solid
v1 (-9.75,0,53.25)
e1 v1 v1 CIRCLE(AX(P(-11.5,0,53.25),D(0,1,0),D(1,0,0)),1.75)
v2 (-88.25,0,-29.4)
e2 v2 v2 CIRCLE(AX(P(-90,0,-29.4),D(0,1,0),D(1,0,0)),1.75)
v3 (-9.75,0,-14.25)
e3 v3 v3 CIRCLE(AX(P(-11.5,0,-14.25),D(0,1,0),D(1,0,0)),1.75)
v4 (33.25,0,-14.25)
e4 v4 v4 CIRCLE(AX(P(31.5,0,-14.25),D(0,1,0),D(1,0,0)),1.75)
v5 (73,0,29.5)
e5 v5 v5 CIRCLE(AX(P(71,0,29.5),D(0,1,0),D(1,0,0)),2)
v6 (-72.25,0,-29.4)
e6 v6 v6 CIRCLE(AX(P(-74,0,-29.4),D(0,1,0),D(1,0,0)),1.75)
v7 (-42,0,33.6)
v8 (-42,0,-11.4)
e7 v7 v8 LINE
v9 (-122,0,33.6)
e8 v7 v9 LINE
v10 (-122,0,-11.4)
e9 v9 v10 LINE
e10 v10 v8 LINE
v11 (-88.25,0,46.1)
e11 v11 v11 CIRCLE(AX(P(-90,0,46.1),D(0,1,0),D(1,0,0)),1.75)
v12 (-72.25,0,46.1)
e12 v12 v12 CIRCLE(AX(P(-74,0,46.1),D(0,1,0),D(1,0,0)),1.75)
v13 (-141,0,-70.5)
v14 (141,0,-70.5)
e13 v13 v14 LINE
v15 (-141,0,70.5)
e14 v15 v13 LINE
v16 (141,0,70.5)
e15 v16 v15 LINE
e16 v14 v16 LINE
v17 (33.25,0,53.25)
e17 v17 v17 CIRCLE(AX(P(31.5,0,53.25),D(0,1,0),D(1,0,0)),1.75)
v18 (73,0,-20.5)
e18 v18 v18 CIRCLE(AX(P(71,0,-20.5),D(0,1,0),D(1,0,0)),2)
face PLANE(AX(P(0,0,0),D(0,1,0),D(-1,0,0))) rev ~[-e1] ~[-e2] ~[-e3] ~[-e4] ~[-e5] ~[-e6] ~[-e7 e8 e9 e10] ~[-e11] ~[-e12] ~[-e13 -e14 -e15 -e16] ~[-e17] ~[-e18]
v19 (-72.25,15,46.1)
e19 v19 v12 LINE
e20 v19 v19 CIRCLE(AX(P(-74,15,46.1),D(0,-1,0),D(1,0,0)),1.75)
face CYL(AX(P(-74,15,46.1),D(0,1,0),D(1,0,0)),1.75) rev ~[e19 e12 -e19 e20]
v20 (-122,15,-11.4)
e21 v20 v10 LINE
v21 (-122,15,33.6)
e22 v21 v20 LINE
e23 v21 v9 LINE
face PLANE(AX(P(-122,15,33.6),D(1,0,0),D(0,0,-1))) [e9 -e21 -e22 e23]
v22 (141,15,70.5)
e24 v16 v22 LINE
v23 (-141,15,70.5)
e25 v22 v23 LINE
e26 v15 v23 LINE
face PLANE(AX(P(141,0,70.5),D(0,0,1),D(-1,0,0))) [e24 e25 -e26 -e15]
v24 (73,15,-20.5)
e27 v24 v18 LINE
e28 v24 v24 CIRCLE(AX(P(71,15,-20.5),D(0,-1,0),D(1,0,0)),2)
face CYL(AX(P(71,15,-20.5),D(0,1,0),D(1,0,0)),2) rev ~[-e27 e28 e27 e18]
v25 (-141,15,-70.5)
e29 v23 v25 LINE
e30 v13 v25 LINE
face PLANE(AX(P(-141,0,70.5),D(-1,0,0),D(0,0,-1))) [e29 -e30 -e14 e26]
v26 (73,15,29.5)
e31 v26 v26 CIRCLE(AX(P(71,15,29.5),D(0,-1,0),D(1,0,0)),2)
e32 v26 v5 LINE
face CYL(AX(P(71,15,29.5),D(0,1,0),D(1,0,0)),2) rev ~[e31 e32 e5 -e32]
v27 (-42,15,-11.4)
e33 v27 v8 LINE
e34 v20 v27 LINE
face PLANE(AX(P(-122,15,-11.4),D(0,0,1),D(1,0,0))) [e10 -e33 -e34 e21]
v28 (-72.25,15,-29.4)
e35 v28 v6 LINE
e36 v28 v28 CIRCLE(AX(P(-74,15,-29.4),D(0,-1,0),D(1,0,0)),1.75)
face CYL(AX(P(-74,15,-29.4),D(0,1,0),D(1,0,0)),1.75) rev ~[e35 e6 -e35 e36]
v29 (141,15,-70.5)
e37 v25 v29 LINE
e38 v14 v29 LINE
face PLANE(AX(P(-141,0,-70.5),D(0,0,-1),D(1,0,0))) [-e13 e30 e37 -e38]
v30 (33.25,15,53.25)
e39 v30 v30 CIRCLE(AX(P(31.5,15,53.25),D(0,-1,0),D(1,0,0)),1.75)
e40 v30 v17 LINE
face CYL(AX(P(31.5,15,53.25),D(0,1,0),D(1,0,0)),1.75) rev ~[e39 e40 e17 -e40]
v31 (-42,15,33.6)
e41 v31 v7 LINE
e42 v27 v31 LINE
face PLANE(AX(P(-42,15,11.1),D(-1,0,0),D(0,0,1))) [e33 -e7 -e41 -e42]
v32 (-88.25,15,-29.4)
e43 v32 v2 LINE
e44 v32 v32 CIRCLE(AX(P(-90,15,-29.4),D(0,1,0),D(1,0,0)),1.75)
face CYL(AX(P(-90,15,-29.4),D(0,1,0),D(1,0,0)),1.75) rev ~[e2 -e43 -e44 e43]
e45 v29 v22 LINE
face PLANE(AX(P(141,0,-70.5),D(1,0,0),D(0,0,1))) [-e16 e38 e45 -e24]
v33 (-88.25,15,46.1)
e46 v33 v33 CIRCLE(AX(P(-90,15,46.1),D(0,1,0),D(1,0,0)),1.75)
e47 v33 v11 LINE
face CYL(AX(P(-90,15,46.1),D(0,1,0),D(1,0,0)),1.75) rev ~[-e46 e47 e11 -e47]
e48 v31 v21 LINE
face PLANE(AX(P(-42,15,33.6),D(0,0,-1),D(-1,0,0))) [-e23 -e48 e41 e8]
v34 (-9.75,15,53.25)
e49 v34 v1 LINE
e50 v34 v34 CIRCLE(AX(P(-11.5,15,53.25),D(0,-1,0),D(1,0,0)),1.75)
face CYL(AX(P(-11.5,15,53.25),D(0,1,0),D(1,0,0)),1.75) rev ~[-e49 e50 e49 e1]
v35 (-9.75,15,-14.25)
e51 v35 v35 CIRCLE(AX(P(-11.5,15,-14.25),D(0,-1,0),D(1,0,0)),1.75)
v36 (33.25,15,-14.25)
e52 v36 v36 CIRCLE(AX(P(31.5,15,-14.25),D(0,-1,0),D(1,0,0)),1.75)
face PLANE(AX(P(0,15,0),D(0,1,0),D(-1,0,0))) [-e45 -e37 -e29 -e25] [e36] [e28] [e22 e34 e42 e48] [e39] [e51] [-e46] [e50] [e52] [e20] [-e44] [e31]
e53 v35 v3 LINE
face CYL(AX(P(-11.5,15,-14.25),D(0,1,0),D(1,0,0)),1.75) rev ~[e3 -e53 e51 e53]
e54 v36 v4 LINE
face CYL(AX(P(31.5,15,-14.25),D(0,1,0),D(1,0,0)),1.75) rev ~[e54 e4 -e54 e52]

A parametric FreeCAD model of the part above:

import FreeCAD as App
import Part
import Sketcher
Q = App.Units.Quantity

doc = App.newDocument("Part")
params = doc.addObject("Spreadsheet::Sheet", "Params")
for row, (alias, value) in enumerate([
    ("sketch1_width", "282 mm"),
    ("sketch1_height", "141 mm"),
    ("pad1_length", "15 mm"),
    ("sketch2_width", "80 mm"),
    ("sketch2_height", "45 mm"),
    ("pocket1_length", "15 mm"),
    ("sketch3_diameter", "3.5 mm"),
    ("pocket2_length", "15 mm"),
    ("sketch4_diameter", "3.5 mm"),
    ("pocket3_length", "15 mm"),
    ("sketch5_diameter", "4 mm"),
    ("pocket4_length", "15 mm"),
], start=1):
    params.set(f"A{row}", alias)
    params.set(f"B{row}", "=" + value)
    params.setAlias(f"B{row}", alias)

body = doc.addObject("PartDesign::Body", "Body")

sketch1 = doc.addObject("Sketcher::SketchObject", "Sketch")
body.addObject(sketch1)
sketch1.AttachmentSupport = (doc.XZ_Plane, [""])
sketch1.MapMode = "FlatFace"
sketch1.addGeometry([
    Part.LineSegment(App.Vector(141, -70.5, 0), App.Vector(-141, -70.5, 0)),
    Part.LineSegment(App.Vector(-141, -70.5, 0), App.Vector(-141, 70.5, 0)),
    Part.LineSegment(App.Vector(-141, 70.5, 0), App.Vector(141, 70.5, 0)),
    Part.LineSegment(App.Vector(141, 70.5, 0), App.Vector(141, -70.5, 0)),
], False)
sketch1.addConstraint([
    Sketcher.Constraint("Coincident", 0, 2, 1, 1),
    Sketcher.Constraint("Coincident", 1, 2, 2, 1),
    Sketcher.Constraint("Coincident", 2, 2, 3, 1),
    Sketcher.Constraint("Coincident", 3, 2, 0, 1),
    Sketcher.Constraint("Horizontal", 0),
    Sketcher.Constraint("Vertical", 1),
    Sketcher.Constraint("Horizontal", 2),
    Sketcher.Constraint("Vertical", 3),
    Sketcher.Constraint("Symmetric", 0, 2, 2, 2, -1, 1),
    Sketcher.Constraint("DistanceX", 0, 2, 0, 1, Q("282 mm")),
    Sketcher.Constraint("DistanceY", 1, 1, 1, 2, Q("141 mm")),
])
sketch1.setExpression("Constraints[9]", "Params.sketch1_width")
sketch1.setExpression("Constraints[10]", "Params.sketch1_height")
pad1 = doc.addObject("PartDesign::Pad", "Pad")
body.addObject(pad1)
pad1.Profile = sketch1
pad1.setExpression("Length", "Params.pad1_length")
pad1.Reversed = True

sketch2 = doc.addObject("Sketcher::SketchObject", "Sketch001")
body.addObject(sketch2)
sketch2.AttachmentSupport = (doc.XZ_Plane, [""])
sketch2.MapMode = "FlatFace"
sketch2.AttachmentOffset = App.Placement(App.Vector(0, 0, -15), App.Rotation())
sketch2.addGeometry([
    Part.LineSegment(App.Vector(-42, -11.4, 0), App.Vector(-122, -11.4, 0)),
    Part.LineSegment(App.Vector(-122, -11.4, 0), App.Vector(-122, 33.6, 0)),
    Part.LineSegment(App.Vector(-122, 33.6, 0), App.Vector(-42, 33.6, 0)),
    Part.LineSegment(App.Vector(-42, 33.6, 0), App.Vector(-42, -11.4, 0)),
], False)
sketch2.addConstraint([
    Sketcher.Constraint("Coincident", 0, 2, 1, 1),
    Sketcher.Constraint("Coincident", 1, 2, 2, 1),
    Sketcher.Constraint("Coincident", 2, 2, 3, 1),
    Sketcher.Constraint("Coincident", 3, 2, 0, 1),
    Sketcher.Constraint("Horizontal", 0),
    Sketcher.Constraint("Vertical", 1),
    Sketcher.Constraint("Horizontal", 2),
    Sketcher.Constraint("Vertical", 3),
    Sketcher.Constraint("DistanceX", 0, 2, 0, 1, Q("80 mm")),
    Sketcher.Constraint("DistanceY", 1, 1, 1, 2, Q("45 mm")),
    Sketcher.Constraint("DistanceX", 0, 2, -1, 1, Q("122 mm")),
    Sketcher.Constraint("DistanceY", 0, 2, -1, 1, Q("11.4 mm")),
])
sketch2.setExpression("Constraints[8]", "Params.sketch2_width")
sketch2.setExpression("Constraints[9]", "Params.sketch2_height")
pocket1 = doc.addObject("PartDesign::Pocket", "Pocket")
body.addObject(pocket1)
pocket1.Profile = sketch2
pocket1.setExpression("Length", "Params.pocket1_length")
pocket1.Reversed = True

sketch3 = doc.addObject("Sketcher::SketchObject", "Sketch002")
body.addObject(sketch3)
sketch3.AttachmentSupport = (doc.XZ_Plane, [""])
sketch3.MapMode = "FlatFace"
sketch3.AttachmentOffset = App.Placement(App.Vector(0, 0, -15), App.Rotation())
sketch3.addGeometry([
    Part.Circle(App.Vector(-74, -29.4, 0), App.Vector(0, 0, 1), 1.75),
    Part.Circle(App.Vector(-90, -29.4, 0), App.Vector(0, 0, 1), 1.75),
    Part.Circle(App.Vector(-74, 46.1, 0), App.Vector(0, 0, 1), 1.75),
    Part.Circle(App.Vector(-90, 46.1, 0), App.Vector(0, 0, 1), 1.75),
], False)
sketch3.addConstraint([
    Sketcher.Constraint("Equal", 0, 1),
    Sketcher.Constraint("Equal", 1, 2),
    Sketcher.Constraint("Equal", 2, 3),
    Sketcher.Constraint("Horizontal", 0, 3, 1, 3),
    Sketcher.Constraint("Horizontal", 2, 3, 3, 3),
    Sketcher.Constraint("Vertical", 0, 3, 2, 3),
    Sketcher.Constraint("Vertical", 1, 3, 3, 3),
    Sketcher.Constraint("Diameter", 0, Q("3.5 mm")),
    Sketcher.Constraint("DistanceX", 0, 3, -1, 1, Q("74 mm")),
    Sketcher.Constraint("DistanceX", 1, 3, -1, 1, Q("90 mm")),
    Sketcher.Constraint("DistanceY", 0, 3, -1, 1, Q("29.4 mm")),
    Sketcher.Constraint("DistanceY", -1, 1, 2, 3, Q("46.1 mm")),
])
sketch3.setExpression("Constraints[7]", "Params.sketch3_diameter")
pocket2 = doc.addObject("PartDesign::Pocket", "Pocket001")
body.addObject(pocket2)
pocket2.Profile = sketch3
pocket2.setExpression("Length", "Params.pocket2_length")
pocket2.Reversed = True

sketch4 = doc.addObject("Sketcher::SketchObject", "Sketch003")
body.addObject(sketch4)
sketch4.AttachmentSupport = (doc.XZ_Plane, [""])
sketch4.MapMode = "FlatFace"
sketch4.AttachmentOffset = App.Placement(App.Vector(0, 0, -15), App.Rotation())
sketch4.addGeometry([
    Part.Circle(App.Vector(-11.5, 53.25, 0), App.Vector(0, 0, 1), 1.75),
    Part.Circle(App.Vector(31.5, 53.25, 0), App.Vector(0, 0, 1), 1.75),
    Part.Circle(App.Vector(31.5, -14.25, 0), App.Vector(0, 0, 1), 1.75),
    Part.Circle(App.Vector(-11.5, -14.25, 0), App.Vector(0, 0, 1), 1.75),
], False)
sketch4.addConstraint([
    Sketcher.Constraint("Equal", 0, 1),
    Sketcher.Constraint("Equal", 1, 2),
    Sketcher.Constraint("Equal", 2, 3),
    Sketcher.Constraint("Horizontal", 0, 3, 1, 3),
    Sketcher.Constraint("Horizontal", 2, 3, 3, 3),
    Sketcher.Constraint("Vertical", 1, 3, 2, 3),
    Sketcher.Constraint("Vertical", 0, 3, 3, 3),
    Sketcher.Constraint("Diameter", 0, Q("3.5 mm")),
    Sketcher.Constraint("DistanceX", 0, 3, 1, 3, Q("43 mm")),
    Sketcher.Constraint("DistanceX", 0, 3, -1, 1, Q("11.5 mm")),
    Sketcher.Constraint("DistanceY", 2, 3, 1, 3, Q("67.5 mm")),
    Sketcher.Constraint("DistanceY", -1, 1, 0, 3, Q("53.25 mm")),
])
sketch4.setExpression("Constraints[7]", "Params.sketch4_diameter")
pocket3 = doc.addObject("PartDesign::Pocket", "Pocket002")
body.addObject(pocket3)
pocket3.Profile = sketch4
pocket3.setExpression("Length", "Params.pocket3_length")
pocket3.Reversed = True

sketch5 = doc.addObject("Sketcher::SketchObject", "Sketch004")
body.addObject(sketch5)
sketch5.AttachmentSupport = (doc.XZ_Plane, [""])
sketch5.MapMode = "FlatFace"
sketch5.AttachmentOffset = App.Placement(App.Vector(0, 0, -15), App.Rotation())
sketch5.addGeometry([
    Part.Circle(App.Vector(71, -20.5, 0), App.Vector(0, 0, 1), 2),
    Part.Circle(App.Vector(71, 29.5, 0), App.Vector(0, 0, 1), 2),
], False)
sketch5.addConstraint([
    Sketcher.Constraint("Equal", 0, 1),
    Sketcher.Constraint("Vertical", 0, 3, 1, 3),
    Sketcher.Constraint("Diameter", 0, Q("4 mm")),
    Sketcher.Constraint("DistanceY", 0, 3, 1, 3, Q("50 mm")),
    Sketcher.Constraint("DistanceX", -1, 1, 0, 3, Q("71 mm")),
    Sketcher.Constraint("DistanceY", 0, 3, -1, 1, Q("20.5 mm")),
])
sketch5.setExpression("Constraints[2]", "Params.sketch5_diameter")
pocket4 = doc.addObject("PartDesign::Pocket", "Pocket003")
body.addObject(pocket4)
pocket4.Profile = sketch5
pocket4.setExpression("Length", "Params.pocket4_length")
pocket4.Reversed = True

doc.recompute()
